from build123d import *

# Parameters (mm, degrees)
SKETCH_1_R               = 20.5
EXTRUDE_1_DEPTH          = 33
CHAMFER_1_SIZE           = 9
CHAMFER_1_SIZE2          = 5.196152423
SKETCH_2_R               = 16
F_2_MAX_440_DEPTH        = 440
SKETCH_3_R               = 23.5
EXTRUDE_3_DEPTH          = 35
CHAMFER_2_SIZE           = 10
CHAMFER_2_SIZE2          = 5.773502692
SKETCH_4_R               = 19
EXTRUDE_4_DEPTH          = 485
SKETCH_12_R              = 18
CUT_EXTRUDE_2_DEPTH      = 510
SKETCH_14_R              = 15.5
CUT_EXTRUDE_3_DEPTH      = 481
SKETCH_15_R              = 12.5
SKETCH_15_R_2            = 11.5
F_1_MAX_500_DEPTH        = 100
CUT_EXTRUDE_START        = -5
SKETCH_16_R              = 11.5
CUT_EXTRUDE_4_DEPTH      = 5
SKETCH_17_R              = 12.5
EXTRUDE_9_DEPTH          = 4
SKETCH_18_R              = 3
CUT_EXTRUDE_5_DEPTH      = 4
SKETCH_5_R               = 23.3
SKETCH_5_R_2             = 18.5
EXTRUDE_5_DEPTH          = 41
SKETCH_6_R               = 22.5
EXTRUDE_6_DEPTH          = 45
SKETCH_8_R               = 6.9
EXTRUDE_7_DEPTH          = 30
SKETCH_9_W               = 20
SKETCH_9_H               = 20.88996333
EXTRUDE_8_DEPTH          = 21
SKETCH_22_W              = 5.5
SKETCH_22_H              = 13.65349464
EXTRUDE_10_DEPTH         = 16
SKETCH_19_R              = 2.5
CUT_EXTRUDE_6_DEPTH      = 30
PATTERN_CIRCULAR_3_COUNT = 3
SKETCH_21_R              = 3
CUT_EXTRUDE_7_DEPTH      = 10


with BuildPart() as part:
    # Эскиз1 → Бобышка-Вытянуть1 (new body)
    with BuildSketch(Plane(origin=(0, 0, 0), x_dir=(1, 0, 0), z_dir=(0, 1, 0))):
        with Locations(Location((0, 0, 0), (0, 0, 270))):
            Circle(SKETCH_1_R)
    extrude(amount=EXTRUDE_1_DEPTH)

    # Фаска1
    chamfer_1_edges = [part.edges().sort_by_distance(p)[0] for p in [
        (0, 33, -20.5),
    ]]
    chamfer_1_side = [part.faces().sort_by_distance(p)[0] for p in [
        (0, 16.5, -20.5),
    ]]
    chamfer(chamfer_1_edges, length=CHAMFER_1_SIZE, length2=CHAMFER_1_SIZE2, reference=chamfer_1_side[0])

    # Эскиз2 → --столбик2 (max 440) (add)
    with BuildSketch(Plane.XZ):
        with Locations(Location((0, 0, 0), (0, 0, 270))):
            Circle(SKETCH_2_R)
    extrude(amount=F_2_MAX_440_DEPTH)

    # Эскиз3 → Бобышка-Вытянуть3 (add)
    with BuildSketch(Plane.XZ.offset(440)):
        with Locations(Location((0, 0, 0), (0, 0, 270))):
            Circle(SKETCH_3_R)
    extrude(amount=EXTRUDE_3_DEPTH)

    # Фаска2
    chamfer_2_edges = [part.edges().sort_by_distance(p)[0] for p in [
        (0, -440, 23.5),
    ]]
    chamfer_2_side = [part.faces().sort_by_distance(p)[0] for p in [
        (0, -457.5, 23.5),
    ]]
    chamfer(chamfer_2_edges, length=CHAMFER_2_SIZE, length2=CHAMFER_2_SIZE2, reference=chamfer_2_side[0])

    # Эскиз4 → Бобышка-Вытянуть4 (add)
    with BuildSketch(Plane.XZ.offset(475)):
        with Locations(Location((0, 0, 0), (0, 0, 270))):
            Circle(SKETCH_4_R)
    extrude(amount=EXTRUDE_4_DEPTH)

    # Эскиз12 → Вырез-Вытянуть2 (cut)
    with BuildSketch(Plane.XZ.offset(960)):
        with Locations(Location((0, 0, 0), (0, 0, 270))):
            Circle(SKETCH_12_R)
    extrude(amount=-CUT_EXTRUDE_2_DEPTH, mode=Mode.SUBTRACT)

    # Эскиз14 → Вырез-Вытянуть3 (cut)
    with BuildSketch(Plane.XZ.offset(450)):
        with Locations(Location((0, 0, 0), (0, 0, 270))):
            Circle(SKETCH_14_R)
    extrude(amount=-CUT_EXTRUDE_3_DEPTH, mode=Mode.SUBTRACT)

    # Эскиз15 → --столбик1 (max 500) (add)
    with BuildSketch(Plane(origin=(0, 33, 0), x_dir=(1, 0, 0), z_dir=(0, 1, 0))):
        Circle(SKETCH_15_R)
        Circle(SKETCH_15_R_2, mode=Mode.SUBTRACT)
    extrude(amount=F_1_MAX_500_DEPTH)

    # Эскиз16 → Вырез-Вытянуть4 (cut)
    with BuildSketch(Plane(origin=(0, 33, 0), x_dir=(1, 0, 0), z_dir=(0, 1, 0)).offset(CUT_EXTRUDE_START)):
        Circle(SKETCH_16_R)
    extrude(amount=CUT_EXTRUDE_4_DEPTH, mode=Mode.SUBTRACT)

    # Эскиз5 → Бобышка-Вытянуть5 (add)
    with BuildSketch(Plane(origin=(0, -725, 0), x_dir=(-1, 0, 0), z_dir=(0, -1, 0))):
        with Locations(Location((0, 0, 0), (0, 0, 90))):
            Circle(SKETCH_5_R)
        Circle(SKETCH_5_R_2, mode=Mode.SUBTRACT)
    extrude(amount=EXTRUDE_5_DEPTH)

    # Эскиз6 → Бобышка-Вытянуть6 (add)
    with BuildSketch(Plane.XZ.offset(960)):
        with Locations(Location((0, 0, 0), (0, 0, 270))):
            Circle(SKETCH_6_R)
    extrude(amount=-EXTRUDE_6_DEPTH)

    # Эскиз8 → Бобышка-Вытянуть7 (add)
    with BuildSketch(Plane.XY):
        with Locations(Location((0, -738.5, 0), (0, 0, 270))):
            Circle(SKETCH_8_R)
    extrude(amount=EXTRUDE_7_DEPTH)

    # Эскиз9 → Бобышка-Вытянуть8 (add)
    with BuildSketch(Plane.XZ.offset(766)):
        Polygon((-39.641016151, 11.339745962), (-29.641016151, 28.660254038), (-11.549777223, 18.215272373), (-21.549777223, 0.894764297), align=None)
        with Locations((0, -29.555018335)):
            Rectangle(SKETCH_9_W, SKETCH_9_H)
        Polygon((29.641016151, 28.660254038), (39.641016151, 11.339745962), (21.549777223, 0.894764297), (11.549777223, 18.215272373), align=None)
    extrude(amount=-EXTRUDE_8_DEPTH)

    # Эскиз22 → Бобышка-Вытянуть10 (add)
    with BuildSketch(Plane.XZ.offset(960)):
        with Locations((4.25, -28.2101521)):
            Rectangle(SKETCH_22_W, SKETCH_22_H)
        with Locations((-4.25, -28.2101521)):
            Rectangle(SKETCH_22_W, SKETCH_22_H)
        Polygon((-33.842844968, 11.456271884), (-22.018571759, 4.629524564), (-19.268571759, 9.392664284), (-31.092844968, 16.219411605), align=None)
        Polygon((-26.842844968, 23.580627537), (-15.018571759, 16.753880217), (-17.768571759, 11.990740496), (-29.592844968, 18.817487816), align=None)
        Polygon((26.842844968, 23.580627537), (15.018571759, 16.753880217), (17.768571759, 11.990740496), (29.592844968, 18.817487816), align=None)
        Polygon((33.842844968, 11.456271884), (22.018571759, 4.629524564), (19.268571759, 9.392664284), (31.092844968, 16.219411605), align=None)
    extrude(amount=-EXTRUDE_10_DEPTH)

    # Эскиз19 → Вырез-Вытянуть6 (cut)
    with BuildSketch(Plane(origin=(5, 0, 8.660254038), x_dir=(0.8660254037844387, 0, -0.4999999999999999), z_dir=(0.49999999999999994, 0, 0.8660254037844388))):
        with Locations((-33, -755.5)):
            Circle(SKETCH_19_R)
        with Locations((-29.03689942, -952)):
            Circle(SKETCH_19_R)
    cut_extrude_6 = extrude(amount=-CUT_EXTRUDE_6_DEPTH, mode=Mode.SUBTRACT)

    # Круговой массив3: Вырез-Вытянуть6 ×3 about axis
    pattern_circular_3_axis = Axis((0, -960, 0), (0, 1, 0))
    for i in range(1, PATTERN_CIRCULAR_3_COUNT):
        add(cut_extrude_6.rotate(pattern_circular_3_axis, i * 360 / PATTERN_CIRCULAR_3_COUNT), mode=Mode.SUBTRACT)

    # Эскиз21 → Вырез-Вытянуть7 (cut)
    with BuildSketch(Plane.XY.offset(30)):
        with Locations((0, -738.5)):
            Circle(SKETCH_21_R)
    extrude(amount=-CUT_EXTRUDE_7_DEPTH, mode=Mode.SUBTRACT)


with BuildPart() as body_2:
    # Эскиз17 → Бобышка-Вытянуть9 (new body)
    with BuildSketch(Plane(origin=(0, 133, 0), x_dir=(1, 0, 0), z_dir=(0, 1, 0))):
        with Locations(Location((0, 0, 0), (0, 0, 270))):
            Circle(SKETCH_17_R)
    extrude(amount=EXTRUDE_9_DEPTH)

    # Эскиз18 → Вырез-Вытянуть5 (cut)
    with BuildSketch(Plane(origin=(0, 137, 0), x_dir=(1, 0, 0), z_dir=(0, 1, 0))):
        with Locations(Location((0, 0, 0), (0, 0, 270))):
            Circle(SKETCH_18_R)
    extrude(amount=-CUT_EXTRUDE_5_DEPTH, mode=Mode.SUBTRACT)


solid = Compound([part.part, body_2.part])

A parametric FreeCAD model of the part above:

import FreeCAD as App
import Part
import Sketcher

V = App.Vector
Q = App.Units.Quantity


def edges_at(feature, points):
    """Names of the edges that pass closest to the given points."""
    edges = feature.Shape.Edges
    near = lambda p: min(range(len(edges)), key=lambda i: edges[i].distToShape(Part.Vertex(*p))[0])
    return sorted({f"Edge{near(p) + 1}" for p in points})

doc = App.newDocument("Part")
body = doc.addObject("PartDesign::Body", "Body")

sketch1 = body.newObject("Sketcher::SketchObject", "Sketch")
sketch1.AttachmentSupport = (doc.getObject("XZ_Plane"), [""])
sketch1.MapMode = "FlatFace"
sketch1.addGeometry(Part.Circle(V(0, 0, 0), V(0, 0, 1), 20), False)
sketch1.addConstraint([
    Sketcher.Constraint("Coincident", 0, 3, -1, 1),
    Sketcher.Constraint("Diameter", 0, 41.0),
])
pad1 = body.newObject("PartDesign::Pad", "Pad")
pad1.Profile = sketch1
pad1.Length = 33
pad1.Reversed = True
doc.recompute()

chamfer = body.newObject("PartDesign::Chamfer", "Chamfer")
chamfer.Base = (pad1, edges_at(pad1, [(0, 33, -20.5)]))
chamfer.ChamferType = "Two distances"
chamfer.Size = 9
chamfer.Size2 = 5.196152

sketch2 = body.newObject("Sketcher::SketchObject", "Sketch001")
sketch2.AttachmentSupport = (doc.getObject("XZ_Plane"), [""])
sketch2.MapMode = "FlatFace"
sketch2.addGeometry(Part.Circle(V(0, 0, 0), V(0, 0, 1), 16), False)
sketch2.addConstraint([
    Sketcher.Constraint("Coincident", 0, 3, -1, 1),
    Sketcher.Constraint("Diameter", 0, 32.0),
])
pad2 = body.newObject("PartDesign::Pad", "Pad001")
pad2.Profile = sketch2
pad2.Length = 440

sketch3 = body.newObject("Sketcher::SketchObject", "Sketch002")
sketch3.AttachmentSupport = (doc.getObject("XZ_Plane"), [""])
sketch3.MapMode = "FlatFace"
sketch3.AttachmentOffset = App.Placement(V(0, 0, 440), App.Rotation())
sketch3.addGeometry(Part.Circle(V(0, 0, 0), V(0, 0, 1), 24), False)
sketch3.addConstraint([
    Sketcher.Constraint("Coincident", 0, 3, -1, 1),
    Sketcher.Constraint("Diameter", 0, 47.0),
])
pad3 = body.newObject("PartDesign::Pad", "Pad002")
pad3.Profile = sketch3
pad3.Length = 35
doc.recompute()

chamfer2 = body.newObject("PartDesign::Chamfer", "Chamfer001")
chamfer2.Base = (pad3, edges_at(pad3, [(0, -440, 23.5)]))
chamfer2.ChamferType = "Two distances"
chamfer2.Size = 10
chamfer2.Size2 = 5.773503
chamfer2.FlipDirection = True

sketch4 = body.newObject("Sketcher::SketchObject", "Sketch003")
sketch4.AttachmentSupport = (doc.getObject("XZ_Plane"), [""])
sketch4.MapMode = "FlatFace"
sketch4.AttachmentOffset = App.Placement(V(0, 0, 475), App.Rotation())
sketch4.addGeometry(Part.Circle(V(0, 0, 0), V(0, 0, 1), 19), False)
sketch4.addConstraint([
    Sketcher.Constraint("Coincident", 0, 3, -1, 1),
    Sketcher.Constraint("Diameter", 0, 38.0),
])
pad4 = body.newObject("PartDesign::Pad", "Pad003")
pad4.Profile = sketch4
pad4.Length = 485

sketch5 = body.newObject("Sketcher::SketchObject", "Sketch004")
sketch5.AttachmentSupport = (doc.getObject("XZ_Plane"), [""])
sketch5.MapMode = "FlatFace"
sketch5.AttachmentOffset = App.Placement(V(0, 0, 960), App.Rotation())
sketch5.addGeometry(Part.Circle(V(0, 0, 0), V(0, 0, 1), 18), False)
sketch5.addConstraint([
    Sketcher.Constraint("Coincident", 0, 3, -1, 1),
    Sketcher.Constraint("Diameter", 0, 36.0),
])
pocket1 = body.newObject("PartDesign::Pocket", "Pocket")
pocket1.Profile = sketch5
pocket1.Length = 510

sketch6 = body.newObject("Sketcher::SketchObject", "Sketch005")
sketch6.AttachmentSupport = (doc.getObject("XZ_Plane"), [""])
sketch6.MapMode = "FlatFace"
sketch6.AttachmentOffset = App.Placement(V(0, 0, 450), App.Rotation())
sketch6.addGeometry(Part.Circle(V(0, 0, 0), V(0, 0, 1), 16), False)
sketch6.addConstraint([
    Sketcher.Constraint("Coincident", 0, 3, -1, 1),
    Sketcher.Constraint("Diameter", 0, 31.0),
])
pocket2 = body.newObject("PartDesign::Pocket", "Pocket001")
pocket2.Profile = sketch6
pocket2.Length = 481

sketch7 = body.newObject("Sketcher::SketchObject", "Sketch006")
sketch7.AttachmentSupport = (doc.getObject("XZ_Plane"), [""])
sketch7.MapMode = "FlatFace"
sketch7.AttachmentOffset = App.Placement(V(0, 0, -33), App.Rotation())
sketch7.addGeometry([
    Part.Circle(V(0, 0, 0), V(0, 0, 1), 12),
    Part.Circle(V(0, 0, 0), V(0, 0, 1), 12),
], False)
sketch7.addConstraint([
    Sketcher.Constraint("Coincident", 0, 3, -1, 1),
    Sketcher.Constraint("Coincident", 1, 3, -1, 1),
    Sketcher.Constraint("Diameter", 0, 25.0),
    Sketcher.Constraint("Diameter", 1, 23.0),
])
pad5 = body.newObject("PartDesign::Pad", "Pad004")
pad5.Profile = sketch7
pad5.Length = 100
pad5.Reversed = True

sketch8 = body.newObject("Sketcher::SketchObject", "Sketch007")
sketch8.AttachmentSupport = (doc.getObject("XZ_Plane"), [""])
sketch8.MapMode = "FlatFace"
sketch8.AttachmentOffset = App.Placement(V(0, 0, -28), App.Rotation())
sketch8.addGeometry(Part.Circle(V(0, 0, 0), V(0, 0, 1), 12), False)
sketch8.addConstraint([
    Sketcher.Constraint("Coincident", 0, 3, -1, 1),
    Sketcher.Constraint("Diameter", 0, 23.0),
])
pocket3 = body.newObject("PartDesign::Pocket", "Pocket002")
pocket3.Profile = sketch8
pocket3.Length = 5

sketch9 = body.newObject("Sketcher::SketchObject", "Sketch008")
sketch9.AttachmentSupport = (doc.getObject("XZ_Plane"), [""])
sketch9.MapMode = "FlatFace"
sketch9.AttachmentOffset = App.Placement(V(0, 0, 725), App.Rotation())
sketch9.addGeometry([
    Part.Circle(V(0, 0, 0), V(0, 0, 1), 23),
    Part.Circle(V(0, 0, 0), V(0, 0, 1), 18),
], False)
sketch9.addConstraint([
    Sketcher.Constraint("Coincident", 0, 3, -1, 1),
    Sketcher.Constraint("Coincident", 1, 3, -1, 1),
    Sketcher.Constraint("Diameter", 1, 37.0),
    Sketcher.Constraint("Diameter", 0, 46.6),
])
pad6 = body.newObject("PartDesign::Pad", "Pad005")
pad6.Profile = sketch9
pad6.Length = 41

sketch10 = body.newObject("Sketcher::SketchObject", "Sketch009")
sketch10.AttachmentSupport = (doc.getObject("XZ_Plane"), [""])
sketch10.MapMode = "FlatFace"
sketch10.AttachmentOffset = App.Placement(V(0, 0, 960), App.Rotation())
sketch10.addGeometry(Part.Circle(V(0, 0, 0), V(0, 0, 1), 22), False)
sketch10.addConstraint([
    Sketcher.Constraint("Coincident", 0, 3, -1, 1),
    Sketcher.Constraint("Diameter", 0, 45.0),
])
pad7 = body.newObject("PartDesign::Pad", "Pad006")
pad7.Profile = sketch10
pad7.Length = 45
pad7.Reversed = True

sketch11 = body.newObject("Sketcher::SketchObject", "Sketch010")
sketch11.AttachmentSupport = (doc.getObject("XY_Plane"), [""])
sketch11.MapMode = "FlatFace"
sketch11.addGeometry(Part.Circle(V(0, -738, 0), V(0, 0, 1), 7), False)
sketch11.addConstraint([
    Sketcher.Constraint("PointOnObject", 0, 3, -2),
    Sketcher.Constraint("Diameter", 0, 13.8),
    Sketcher.Constraint("DistanceY", 0, 3, -1, 1, 738.5),
])
pad8 = body.newObject("PartDesign::Pad", "Pad007")
pad8.Profile = sketch11
pad8.Length = 30

sketch12 = body.newObject("Sketcher::SketchObject", "Sketch011")
sketch12.AttachmentSupport = (doc.getObject("XZ_Plane"), [""])
sketch12.MapMode = "FlatFace"
sketch12.AttachmentOffset = App.Placement(V(0, 0, 766), App.Rotation())
sketch12.addGeometry([
    Part.LineSegment(V(-30, 29, 0), V(-40, 11, 0)),
    Part.LineSegment(V(-40, 11, 0), V(-22, 1, 0)),
    Part.LineSegment(V(-22, 1, 0), V(-12, 18, 0)),
    Part.LineSegment(V(-12, 18, 0), V(-30, 29, 0)),
    Part.LineSegment(V(-10, -19, 0), V(-10, -40, 0)),
    Part.LineSegment(V(-10, -40, 0), V(10, -40, 0)),
    Part.LineSegment(V(10, -40, 0), V(10, -19, 0)),
    Part.LineSegment(V(10, -19, 0), V(-10, -19, 0)),
    Part.LineSegment(V(40, 11, 0), V(30, 29, 0)),
    Part.LineSegment(V(30, 29, 0), V(12, 18, 0)),
    Part.LineSegment(V(12, 18, 0), V(22, 1, 0)),
    Part.LineSegment(V(22, 1, 0), V(40, 11, 0)),
], False)
sketch12.addConstraint([
    Sketcher.Constraint("Coincident", 0, 2, 1, 1),
    Sketcher.Constraint("Coincident", 1, 2, 2, 1),
    Sketcher.Constraint("Coincident", 2, 2, 3, 1),
    Sketcher.Constraint("Coincident", 3, 2, 0, 1),
    Sketcher.Constraint("Coincident", 4, 2, 5, 1),
    Sketcher.Constraint("Coincident", 5, 2, 6, 1),
    Sketcher.Constraint("Coincident", 6, 2, 7, 1),
    Sketcher.Constraint("Coincident", 7, 2, 4, 1),
    Sketcher.Constraint("Coincident", 8, 2, 9, 1),
    Sketcher.Constraint("Coincident", 9, 2, 10, 1),
    Sketcher.Constraint("Coincident", 10, 2, 11, 1),
    Sketcher.Constraint("Coincident", 11, 2, 8, 1),
    Sketcher.Constraint("Vertical", 4),
    Sketcher.Constraint("Horizontal", 5),
    Sketcher.Constraint("Vertical", 6),
    Sketcher.Constraint("Horizontal", 7),
    Sketcher.Constraint("Symmetric", 3, 2, 8, 2, -2),
    Sketcher.Constraint("Symmetric", 2, 2, 9, 2, -2),
    Sketcher.Constraint("Symmetric", 1, 2, 10, 2, -2),
    Sketcher.Constraint("Symmetric", 0, 2, 11, 2, -2),
    Sketcher.Constraint("Perpendicular", 0, 1),
    Sketcher.Constraint("Perpendicular", 1, 2),
    Sketcher.Constraint("Perpendicular", 2, 3),
    Sketcher.Constraint("DistanceX", 5, 1, 5, 2, 20.0),
    Sketcher.Constraint("Angle", 0, Q("-120 deg")),
    Sketcher.Constraint("Distance", 0, 20.0),
    Sketcher.Constraint("DistanceX", 4, 2, -1, 1, 10.0),
    Sketcher.Constraint("DistanceY", 4, 2, -1, 1, 40.0),
    Sketcher.Constraint("DistanceY", 6, 2, 1, 2, 20.004801),
    Sketcher.Constraint("DistanceY", 4, 2, 4, 1, 20.889963),
    Sketcher.Constraint("DistanceX", 0, 2, 1, 2, 18.091239),
    Sketcher.Constraint("DistanceX", 0, 2, -1, 1, 39.641016),
])
pad9 = body.newObject("PartDesign::Pad", "Pad008")
pad9.Profile = sketch12
pad9.Length = 21
pad9.Reversed = True

sketch13 = body.newObject("Sketcher::SketchObject", "Sketch012")
sketch13.AttachmentSupport = (doc.getObject("XZ_Plane"), [""])
sketch13.MapMode = "FlatFace"
sketch13.AttachmentOffset = App.Placement(V(0, 0, 960), App.Rotation())
sketch13.addGeometry([
    Part.LineSegment(V(2, -21, 0), V(2, -35, 0)),
    Part.LineSegment(V(2, -35, 0), V(7, -35, 0)),
    Part.LineSegment(V(7, -35, 0), V(7, -21, 0)),
    Part.LineSegment(V(7, -21, 0), V(2, -21, 0)),
    Part.LineSegment(V(-7, -21, 0), V(-7, -35, 0)),
    Part.LineSegment(V(-7, -35, 0), V(-2, -35, 0)),
    Part.LineSegment(V(-2, -35, 0), V(-2, -21, 0)),
    Part.LineSegment(V(-2, -21, 0), V(-7, -21, 0)),
    Part.LineSegment(V(-34, 11, 0), V(-22, 5, 0)),
    Part.LineSegment(V(-22, 5, 0), V(-19, 9, 0)),
    Part.LineSegment(V(-19, 9, 0), V(-31, 16, 0)),
    Part.LineSegment(V(-31, 16, 0), V(-34, 11, 0)),
    Part.LineSegment(V(-15, 17, 0), V(-27, 24, 0)),
    Part.LineSegment(V(-27, 24, 0), V(-30, 19, 0)),
    Part.LineSegment(V(-30, 19, 0), V(-18, 12, 0)),
    Part.LineSegment(V(-18, 12, 0), V(-15, 17, 0)),
    Part.LineSegment(V(27, 24, 0), V(15, 17, 0)),
    Part.LineSegment(V(15, 17, 0), V(18, 12, 0)),
    Part.LineSegment(V(18, 12, 0), V(30, 19, 0)),
    Part.LineSegment(V(30, 19, 0), V(27, 24, 0)),
    Part.LineSegment(V(22, 5, 0), V(34, 11, 0)),
    Part.LineSegment(V(34, 11, 0), V(31, 16, 0)),
    Part.LineSegment(V(31, 16, 0), V(19, 9, 0)),
    Part.LineSegment(V(19, 9, 0), V(22, 5, 0)),
], False)
sketch13.addConstraint([
    Sketcher.Constraint("Coincident", 0, 2, 1, 1),
    Sketcher.Constraint("Coincident", 1, 2, 2, 1),
    Sketcher.Constraint("Coincident", 2, 2, 3, 1),
    Sketcher.Constraint("Coincident", 3, 2, 0, 1),
    Sketcher.Constraint("Coincident", 4, 2, 5, 1),
    Sketcher.Constraint("Coincident", 5, 2, 6, 1),
    Sketcher.Constraint("Coincident", 6, 2, 7, 1),
    Sketcher.Constraint("Coincident", 7, 2, 4, 1),
    Sketcher.Constraint("Coincident", 8, 2, 9, 1),
    Sketcher.Constraint("Coincident", 9, 2, 10, 1),
    Sketcher.Constraint("Coincident", 10, 2, 11, 1),
    Sketcher.Constraint("Coincident", 11, 2, 8, 1),
    Sketcher.Constraint("Coincident", 12, 2, 13, 1),
    Sketcher.Constraint("Coincident", 13, 2, 14, 1),
    Sketcher.Constraint("Coincident", 14, 2, 15, 1),
    Sketcher.Constraint("Coincident", 15, 2, 12, 1),
    Sketcher.Constraint("Coincident", 16, 2, 17, 1),
    Sketcher.Constraint("Coincident", 17, 2, 18, 1),
    Sketcher.Constraint("Coincident", 18, 2, 19, 1),
    Sketcher.Constraint("Coincident", 19, 2, 16, 1),
    Sketcher.Constraint("Coincident", 20, 2, 21, 1),
    Sketcher.Constraint("Coincident", 21, 2, 22, 1),
    Sketcher.Constraint("Coincident", 22, 2, 23, 1),
    Sketcher.Constraint("Coincident", 23, 2, 20, 1),
    Sketcher.Constraint("Vertical", 0),
    Sketcher.Constraint("Horizontal", 1),
    Sketcher.Constraint("Vertical", 2),
    Sketcher.Constraint("Horizontal", 3),
    Sketcher.Constraint("Vertical", 4),
    Sketcher.Constraint("Horizontal", 5),
    Sketcher.Constraint("Vertical", 6),
    Sketcher.Constraint("Horizontal", 7),
    Sketcher.Constraint("Symmetric", 1, 2, 4, 2, -2),
    Sketcher.Constraint("Symmetric", 3, 2, 6, 2, -2),
    Sketcher.Constraint("Symmetric", 15, 2, 16, 2, -2),
    Sketcher.Constraint("Symmetric", 14, 2, 17, 2, -2),
    Sketcher.Constraint("Symmetric", 13, 2, 18, 2, -2),
    Sketcher.Constraint("Symmetric", 12, 2, 19, 2, -2),
    Sketcher.Constraint("Symmetric", 11, 2, 20, 2, -2),
    Sketcher.Constraint("Symmetric", 10, 2, 21, 2, -2),
    Sketcher.Constraint("Symmetric", 9, 2, 22, 2, -2),
    Sketcher.Constraint("Symmetric", 8, 2, 23, 2, -2),
    Sketcher.Constraint("Perpendicular", 8, 9),
    Sketcher.Constraint("Perpendicular", 9, 10),
    Sketcher.Constraint("Perpendicular", 10, 11),
    Sketcher.Constraint("Perpendicular", 11, 12),
    Sketcher.Constraint("Perpendicular", 12, 13),
    Sketcher.Constraint("Perpendicular", 13, 14),
    Sketcher.Constraint("Perpendicular", 14, 15),
    Sketcher.Constraint("Equal", 10, 12),
    Sketcher.Constraint("Equal", 11, 13),
    Sketcher.Constraint("Angle", 8, Q("-30 deg")),
    Sketcher.Constraint("DistanceX", 1, 1, 1, 2, 5.5),
    Sketcher.Constraint("DistanceX", -1, 1, 1, 2, 7.0),
    Sketcher.Constraint("DistanceX", 11, 2, 12, 2, 7.0),
    Sketcher.Constraint("Distance", 9, 5.5),
    Sketcher.Constraint("DistanceY", 0, 2, -1, 1, 35.036899),
    Sketcher.Constraint("DistanceY", 0, 2, 0, 1, 13.653495),
    Sketcher.Constraint("DistanceX", 8, 2, -1, 1, 22.018572),
    Sketcher.Constraint("DistanceY", -1, 1, 10, 2, 16.219412),
    Sketcher.Constraint("DistanceY", -1, 1, 14, 2, 11.99074),
    Sketcher.Constraint("DistanceY", 7, 2, 8, 2, 26.012929),
])
pad10 = body.newObject("PartDesign::Pad", "Pad009")
pad10.Profile = sketch13
pad10.Length = 16
pad10.Reversed = True

sketch14 = body.newObject("Sketcher::SketchObject", "Sketch013")
sketch14.Placement = App.Placement(V(5, 0, 8.660254), App.Rotation(V(0.866025404, 0, -0.5), V(0, 1, 0), V(0.5, 0, 0.866025404), "ZXY"))
sketch14.addGeometry([
    Part.Circle(V(-33, -755.5, 0), V(0, 0, 1), 2.5),
    Part.Circle(V(-29, -952, 0), V(0, 0, 1), 2.5),
], False)
sketch14.addConstraint([
    Sketcher.Constraint("Equal", 0, 1),
    Sketcher.Constraint("Diameter", 0, 5.0),
    Sketcher.Constraint("DistanceX", 0, 3, -1, 1, 33.0),
    Sketcher.Constraint("DistanceY", 1, 3, -1, 1, 952.000001),
    Sketcher.Constraint("DistanceY", 0, 3, -1, 1, 755.500001),
    Sketcher.Constraint("DistanceX", 1, 3, -1, 1, 29.036899),
])
pocket4 = body.newObject("PartDesign::Pocket", "Pocket003")
pocket4.Profile = sketch14
pocket4.Length = 30
doc.recompute()

polarpattern = body.newObject("PartDesign::PolarPattern", "PolarPattern")
polarpattern.Originals = [pocket4]
polarpattern.Axis = (doc.getObject("Y_Axis"), [""])
polarpattern.Angle = 360
polarpattern.Occurrences = 3
body.Tip = polarpattern

sketch15 = body.newObject("Sketcher::SketchObject", "Sketch014")
sketch15.AttachmentSupport = (doc.getObject("XY_Plane"), [""])
sketch15.MapMode = "FlatFace"
sketch15.AttachmentOffset = App.Placement(V(0, 0, 30), App.Rotation())
sketch15.addGeometry(Part.Circle(V(0, -738.5, 0), V(0, 0, 1), 3), False)
sketch15.addConstraint([
    Sketcher.Constraint("PointOnObject", 0, 3, -2),
    Sketcher.Constraint("Diameter", 0, 6.0),
    Sketcher.Constraint("DistanceY", 0, 3, -1, 1, 738.5),
])
pocket5 = body.newObject("PartDesign::Pocket", "Pocket004")
pocket5.Profile = sketch15
pocket5.Length = 10
body2 = doc.addObject("PartDesign::Body", "Body001")

sketch16 = body2.newObject("Sketcher::SketchObject", "Sketch015")
sketch16.AttachmentSupport = (doc.getObject("XZ_Plane001"), [""])
sketch16.MapMode = "FlatFace"
sketch16.AttachmentOffset = App.Placement(V(0, 0, -133), App.Rotation())
sketch16.addGeometry(Part.Circle(V(0, 0, 0), V(0, 0, 1), 12), False)
sketch16.addConstraint([
    Sketcher.Constraint("Coincident", 0, 3, -1, 1),
    Sketcher.Constraint("Diameter", 0, 25.0),
])
pad11 = body2.newObject("PartDesign::Pad", "Pad010")
pad11.Profile = sketch16
pad11.Length = 4
pad11.Reversed = True

sketch17 = body2.newObject("Sketcher::SketchObject", "Sketch016")
sketch17.AttachmentSupport = (doc.getObject("XZ_Plane001"), [""])
sketch17.MapMode = "FlatFace"
sketch17.AttachmentOffset = App.Placement(V(0, 0, -137), App.Rotation())
sketch17.addGeometry(Part.Circle(V(0, 0, 0), V(0, 0, 1), 3), False)
sketch17.addConstraint([
    Sketcher.Constraint("Coincident", 0, 3, -1, 1),
    Sketcher.Constraint("Diameter", 0, 6.0),
])
pocket6 = body2.newObject("PartDesign::Pocket", "Pocket005")
pocket6.Profile = sketch17
pocket6.Length = 4
pocket6.Reversed = True

doc.recompute()
